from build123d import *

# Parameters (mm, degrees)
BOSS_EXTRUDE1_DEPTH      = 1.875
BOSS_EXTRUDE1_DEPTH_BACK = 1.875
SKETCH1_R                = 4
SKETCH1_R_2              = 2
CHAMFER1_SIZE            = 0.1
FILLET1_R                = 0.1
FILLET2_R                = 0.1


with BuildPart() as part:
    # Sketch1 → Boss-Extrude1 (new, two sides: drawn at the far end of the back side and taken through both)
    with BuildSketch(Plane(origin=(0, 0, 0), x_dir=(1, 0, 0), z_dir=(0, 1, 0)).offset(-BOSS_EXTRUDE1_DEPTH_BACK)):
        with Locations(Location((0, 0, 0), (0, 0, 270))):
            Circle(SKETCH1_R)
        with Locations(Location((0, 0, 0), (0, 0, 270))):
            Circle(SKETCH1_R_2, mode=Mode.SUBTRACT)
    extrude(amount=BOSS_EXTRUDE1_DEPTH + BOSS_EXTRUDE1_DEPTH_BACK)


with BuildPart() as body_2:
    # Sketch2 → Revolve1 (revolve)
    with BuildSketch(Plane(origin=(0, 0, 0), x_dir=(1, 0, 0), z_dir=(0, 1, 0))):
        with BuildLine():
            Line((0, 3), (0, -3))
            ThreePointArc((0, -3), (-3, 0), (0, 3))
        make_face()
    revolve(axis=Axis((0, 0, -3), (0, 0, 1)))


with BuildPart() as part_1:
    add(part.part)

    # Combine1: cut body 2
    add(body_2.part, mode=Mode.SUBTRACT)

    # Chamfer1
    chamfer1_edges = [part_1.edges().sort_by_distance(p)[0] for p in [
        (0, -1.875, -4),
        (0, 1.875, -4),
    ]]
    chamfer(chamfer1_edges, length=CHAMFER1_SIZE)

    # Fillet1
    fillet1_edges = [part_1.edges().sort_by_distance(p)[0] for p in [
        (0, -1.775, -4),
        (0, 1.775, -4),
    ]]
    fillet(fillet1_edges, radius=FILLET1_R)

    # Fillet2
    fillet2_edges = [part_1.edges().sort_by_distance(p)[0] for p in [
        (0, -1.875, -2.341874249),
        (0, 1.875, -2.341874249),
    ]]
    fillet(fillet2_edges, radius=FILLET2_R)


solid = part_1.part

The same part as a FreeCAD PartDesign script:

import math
import FreeCAD as App
import Part
import Sketcher
from FreeCAD import Vector


def edges_at(feature, points):
    """Names of the edges that pass closest to the given points."""
    edges = feature.Shape.Edges
    near = lambda p: min(range(len(edges)), key=lambda i: edges[i].distToShape(Part.Vertex(*p))[0])
    return sorted({f"Edge{near(p) + 1}" for p in points})

doc = App.newDocument("Part")
params = doc.addObject("Spreadsheet::Sheet", "Params")
for row, (alias, value) in enumerate([
    ("sketch1_diameter", "8 mm"),
    ("sketch1_diameter2", "4 mm"),
    ("pad1_length", "1.875 mm"),
    ("pad1_length2", "1.875 mm"),
    ("sketch2_radius", "3 mm"),
    ("revolution_angle", "360 deg"),
    ("chamfer_size", "0.1 mm"),
    ("fillet_radius", "0.1 mm"),
    ("fillet2_radius", "0.1 mm"),
], start=1):
    params.set(f"A{row}", alias)
    params.set(f"B{row}", "=" + value)
    params.setAlias(f"B{row}", alias)

body = doc.addObject("PartDesign::Body", "Body")

# Sketch on XZ plane
sketch1 = body.newObject("Sketcher::SketchObject", "Sketch")
sketch1.AttachmentSupport = (doc.getObject("XZ_Plane"), [""])
sketch1.MapMode = "FlatFace"
sketch1.addGeometry(Part.Circle(Vector(0, 0, 0), Vector(0, 0, 1), 4), False)
sketch1.addGeometry(Part.Circle(Vector(0, 0, 0), Vector(0, 0, 1), 2), False)
sketch1.addConstraint(Sketcher.Constraint("Coincident", 0, 3, -1, 1))
sketch1.addConstraint(Sketcher.Constraint("Coincident", 1, 3, -1, 1))
sketch1.addConstraint(Sketcher.Constraint("Diameter", 0, 8.0))
sketch1.addConstraint(Sketcher.Constraint("Diameter", 1, 4.0))
sketch1.setExpression("Constraints[2]", "Params.sketch1_diameter")
sketch1.setExpression("Constraints[3]", "Params.sketch1_diameter2")
pad1 = body.newObject("PartDesign::Pad", "Pad")
pad1.Profile = sketch1
pad1.Type = "TwoLengths"
pad1.setExpression("Length", "Params.pad1_length")
pad1.setExpression("Length2", "Params.pad1_length2")
pad1.Reversed = True
body2 = doc.addObject("PartDesign::Body", "Body001")

# Sketch on XZ plane
sketch2 = body2.newObject("Sketcher::SketchObject", "Sketch001")
sketch2.AttachmentSupport = (doc.getObject("XZ_Plane001"), [""])
sketch2.MapMode = "FlatFace"
sketch2.addGeometry(Part.LineSegment(Vector(0, 3, 0), Vector(0, -3, 0)), False)
sketch2.addGeometry(Part.ArcOfCircle(Part.Circle(Vector(0, 0, 0), Vector(0, 0, 1), 3), math.radians(90), math.radians(270)), False)
sketch2.addConstraint(Sketcher.Constraint("Coincident", 0, 1, 1, 1))
sketch2.addConstraint(Sketcher.Constraint("Coincident", 1, 2, 0, 2))
sketch2.addConstraint(Sketcher.Constraint("Vertical", 0))
sketch2.addConstraint(Sketcher.Constraint("Coincident", 1, 3, -1, 1))
sketch2.addConstraint(Sketcher.Constraint("PointOnObject", 0, 1, -2))
sketch2.addConstraint(Sketcher.Constraint("Radius", 1, 3.0))
sketch2.setExpression("Constraints[5]", "Params.sketch2_radius")
revolution = body2.newObject("PartDesign::Revolution", "Revolution")
revolution.Profile = sketch2
revolution.ReferenceAxis = (sketch2, ["V_Axis"])
revolution.setExpression("Angle", "Params.revolution_angle")
doc.recompute()

boolean = body.newObject("PartDesign::Boolean", "Boolean")
boolean.Type = "Cut"
boolean.addObjects([body2])
doc.recompute()

chamfer = body.newObject("PartDesign::Chamfer", "Chamfer")
chamfer.Base = (boolean, edges_at(boolean, [(0, -1.875, -4), (0, 1.875, -4)]))
chamfer.setExpression("Size", "Params.chamfer_size")
doc.recompute()

fillet = body.newObject("PartDesign::Fillet", "Fillet")
fillet.Base = (chamfer, edges_at(chamfer, [(0, -1.775, -4), (0, 1.775, -4)]))
fillet.setExpression("Radius", "Params.fillet_radius")
doc.recompute()

fillet2 = body.newObject("PartDesign::Fillet", "Fillet001")
fillet2.Base = (fillet, edges_at(fillet, [(0, -1.875, -2.342), (0, 1.875, -2.342)]))
fillet2.setExpression("Radius", "Params.fillet2_radius")

doc.recompute()
